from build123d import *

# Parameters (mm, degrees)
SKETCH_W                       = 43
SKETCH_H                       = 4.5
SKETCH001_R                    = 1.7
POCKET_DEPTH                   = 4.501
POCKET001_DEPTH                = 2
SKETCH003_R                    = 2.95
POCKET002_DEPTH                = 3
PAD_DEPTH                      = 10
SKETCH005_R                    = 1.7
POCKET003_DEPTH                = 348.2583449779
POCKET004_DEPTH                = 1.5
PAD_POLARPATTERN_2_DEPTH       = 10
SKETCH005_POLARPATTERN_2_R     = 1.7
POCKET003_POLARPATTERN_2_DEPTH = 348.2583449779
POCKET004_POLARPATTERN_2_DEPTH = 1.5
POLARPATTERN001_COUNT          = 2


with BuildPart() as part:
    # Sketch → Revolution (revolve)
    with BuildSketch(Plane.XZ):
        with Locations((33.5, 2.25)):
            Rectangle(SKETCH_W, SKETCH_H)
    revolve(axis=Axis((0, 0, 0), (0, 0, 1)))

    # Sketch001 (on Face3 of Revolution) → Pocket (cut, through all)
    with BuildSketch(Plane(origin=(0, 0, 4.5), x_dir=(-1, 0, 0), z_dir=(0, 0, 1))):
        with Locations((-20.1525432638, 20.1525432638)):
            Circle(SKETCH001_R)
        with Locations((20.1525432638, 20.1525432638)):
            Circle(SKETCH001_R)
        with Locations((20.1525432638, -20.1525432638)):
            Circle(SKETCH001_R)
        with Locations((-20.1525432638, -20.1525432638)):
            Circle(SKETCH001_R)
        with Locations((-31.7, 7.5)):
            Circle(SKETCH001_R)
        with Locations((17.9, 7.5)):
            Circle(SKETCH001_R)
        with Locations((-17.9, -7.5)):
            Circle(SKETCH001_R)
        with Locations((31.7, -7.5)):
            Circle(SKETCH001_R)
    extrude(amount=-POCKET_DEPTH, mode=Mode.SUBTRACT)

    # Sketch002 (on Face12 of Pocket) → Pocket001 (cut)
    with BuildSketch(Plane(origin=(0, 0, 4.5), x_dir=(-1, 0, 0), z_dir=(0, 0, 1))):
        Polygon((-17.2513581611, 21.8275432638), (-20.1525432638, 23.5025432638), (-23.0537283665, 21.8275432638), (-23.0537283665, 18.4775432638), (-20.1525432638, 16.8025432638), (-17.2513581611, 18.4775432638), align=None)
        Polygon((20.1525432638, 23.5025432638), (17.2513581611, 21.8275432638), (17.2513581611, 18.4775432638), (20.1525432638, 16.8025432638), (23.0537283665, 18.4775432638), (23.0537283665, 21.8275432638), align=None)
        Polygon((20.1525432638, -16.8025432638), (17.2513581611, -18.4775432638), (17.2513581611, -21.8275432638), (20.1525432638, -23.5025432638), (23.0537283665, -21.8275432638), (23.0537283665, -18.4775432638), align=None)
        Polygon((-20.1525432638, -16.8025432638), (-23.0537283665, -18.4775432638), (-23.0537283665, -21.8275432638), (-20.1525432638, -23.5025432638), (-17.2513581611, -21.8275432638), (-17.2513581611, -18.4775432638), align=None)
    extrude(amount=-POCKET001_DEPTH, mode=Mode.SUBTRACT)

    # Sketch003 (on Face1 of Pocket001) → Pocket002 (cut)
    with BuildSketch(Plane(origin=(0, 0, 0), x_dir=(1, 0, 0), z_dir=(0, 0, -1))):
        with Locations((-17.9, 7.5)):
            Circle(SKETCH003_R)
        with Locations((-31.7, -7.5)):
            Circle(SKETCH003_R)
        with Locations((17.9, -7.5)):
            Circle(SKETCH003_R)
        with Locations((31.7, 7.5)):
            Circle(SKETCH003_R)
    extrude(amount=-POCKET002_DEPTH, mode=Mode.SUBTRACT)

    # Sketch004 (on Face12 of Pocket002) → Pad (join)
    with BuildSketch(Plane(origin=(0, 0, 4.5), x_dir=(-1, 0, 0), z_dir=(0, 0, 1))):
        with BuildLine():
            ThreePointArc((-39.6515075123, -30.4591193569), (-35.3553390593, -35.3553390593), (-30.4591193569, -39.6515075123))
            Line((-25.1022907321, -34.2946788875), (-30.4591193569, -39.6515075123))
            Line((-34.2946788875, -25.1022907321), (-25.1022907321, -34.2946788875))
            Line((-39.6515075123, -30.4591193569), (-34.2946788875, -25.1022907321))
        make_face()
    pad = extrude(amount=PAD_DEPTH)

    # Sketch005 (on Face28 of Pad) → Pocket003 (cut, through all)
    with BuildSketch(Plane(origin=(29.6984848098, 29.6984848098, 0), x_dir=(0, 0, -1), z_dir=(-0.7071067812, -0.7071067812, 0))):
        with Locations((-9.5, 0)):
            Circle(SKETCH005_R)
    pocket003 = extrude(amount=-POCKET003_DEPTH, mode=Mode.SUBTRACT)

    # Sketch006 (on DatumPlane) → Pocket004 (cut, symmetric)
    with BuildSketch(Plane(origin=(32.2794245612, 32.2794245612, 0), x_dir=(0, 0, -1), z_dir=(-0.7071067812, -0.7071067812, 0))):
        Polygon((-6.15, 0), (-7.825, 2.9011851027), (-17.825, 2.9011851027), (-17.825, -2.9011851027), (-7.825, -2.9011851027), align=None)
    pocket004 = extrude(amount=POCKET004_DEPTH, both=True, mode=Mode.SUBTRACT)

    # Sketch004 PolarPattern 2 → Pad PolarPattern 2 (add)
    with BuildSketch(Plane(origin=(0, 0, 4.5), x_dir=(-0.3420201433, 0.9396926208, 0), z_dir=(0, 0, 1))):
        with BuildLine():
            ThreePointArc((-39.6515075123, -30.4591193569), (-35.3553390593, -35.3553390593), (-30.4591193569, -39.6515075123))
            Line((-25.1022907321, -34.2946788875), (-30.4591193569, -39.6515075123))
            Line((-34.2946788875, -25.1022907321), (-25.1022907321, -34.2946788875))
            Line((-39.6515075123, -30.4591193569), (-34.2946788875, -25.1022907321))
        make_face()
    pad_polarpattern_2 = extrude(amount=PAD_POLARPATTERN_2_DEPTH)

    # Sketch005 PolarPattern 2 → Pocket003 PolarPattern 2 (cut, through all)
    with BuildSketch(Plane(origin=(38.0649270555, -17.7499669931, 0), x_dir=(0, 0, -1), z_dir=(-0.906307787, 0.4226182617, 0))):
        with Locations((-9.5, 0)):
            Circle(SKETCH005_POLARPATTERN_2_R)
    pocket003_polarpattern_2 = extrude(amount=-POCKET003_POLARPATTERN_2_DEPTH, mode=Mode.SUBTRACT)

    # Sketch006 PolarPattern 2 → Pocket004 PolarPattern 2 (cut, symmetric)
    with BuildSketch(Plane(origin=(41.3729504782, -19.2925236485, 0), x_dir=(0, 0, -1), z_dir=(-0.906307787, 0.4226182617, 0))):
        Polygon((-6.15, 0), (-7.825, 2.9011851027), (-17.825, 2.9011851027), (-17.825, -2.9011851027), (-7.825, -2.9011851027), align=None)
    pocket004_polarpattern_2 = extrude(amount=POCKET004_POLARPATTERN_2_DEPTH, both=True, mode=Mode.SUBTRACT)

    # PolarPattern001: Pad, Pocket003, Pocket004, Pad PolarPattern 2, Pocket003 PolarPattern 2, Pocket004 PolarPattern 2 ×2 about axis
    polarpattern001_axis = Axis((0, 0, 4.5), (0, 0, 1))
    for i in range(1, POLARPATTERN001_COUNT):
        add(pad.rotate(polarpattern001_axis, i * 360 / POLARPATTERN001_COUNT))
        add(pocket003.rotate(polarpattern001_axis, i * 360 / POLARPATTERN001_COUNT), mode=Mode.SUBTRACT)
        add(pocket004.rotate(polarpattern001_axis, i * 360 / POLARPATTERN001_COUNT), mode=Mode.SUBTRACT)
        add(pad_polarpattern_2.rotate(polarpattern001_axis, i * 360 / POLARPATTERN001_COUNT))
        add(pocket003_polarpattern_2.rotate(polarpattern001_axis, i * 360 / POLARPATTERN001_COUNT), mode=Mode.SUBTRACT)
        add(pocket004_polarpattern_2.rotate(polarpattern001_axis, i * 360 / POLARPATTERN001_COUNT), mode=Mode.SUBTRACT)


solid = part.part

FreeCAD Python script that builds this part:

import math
import FreeCAD as App
import Part
import Sketcher
from FreeCAD import Vector
Q = App.Units.Quantity


def add_polygon(sketch, points):
    """Adds a closed chain of lines whose ends are joined by coincident constraints."""
    first, n = sketch.GeometryCount, len(points)
    for a, b in zip(points, points[1:] + points[:1]):
        sketch.addGeometry(Part.LineSegment(App.Vector(*a, 0), App.Vector(*b, 0)), False)
    for i in range(n):
        sketch.addConstraint(Sketcher.Constraint("Coincident", first + i, 2, first + (i + 1) % n, 1))

doc = App.newDocument("Part")
body = doc.addObject("PartDesign::Body", "Body")

sketch1 = body.newObject("Sketcher::SketchObject", "Sketch")
sketch1.AttachmentSupport = (doc.getObject("XZ_Plane"), [""])
sketch1.MapMode = "FlatFace"
add_polygon(sketch1, [(12, 4.5), (12, 0), (55, 0), (55, 4.5)])
sketch1.addConstraint([
    Sketcher.Constraint("Vertical", 0),
    Sketcher.Constraint("Horizontal", 1),
    Sketcher.Constraint("Vertical", 2),
    Sketcher.Constraint("Horizontal", 3),
    Sketcher.Constraint("PointOnObject", 0, 2, -1),
    Sketcher.Constraint("DistanceX", 1, 1, 1, 2, Q("43 mm")),
    Sketcher.Constraint("DistanceY", 0, 2, 0, 1, Q("4.5 mm")),
    Sketcher.Constraint("DistanceX", -1, 1, 0, 2, Q("12 mm")),
])
revolution = body.newObject("PartDesign::Revolution", "Revolution")
revolution.Profile = sketch1
revolution.ReferenceAxis = (sketch1, ["V_Axis"])
revolution.Angle = 360

sketch2 = body.newObject("Sketcher::SketchObject", "Sketch001")
sketch2.AttachmentSupport = (doc.getObject("XY_Plane"), [""])
sketch2.MapMode = "FlatFace"
sketch2.AttachmentOffset = App.Placement(Vector(0, 0, 4.5), App.Rotation())
sketch2.addGeometry([
    Part.Circle(Vector(20.2, -20.2, 0), Vector(0, 0, 1), 1.7),
    Part.Circle(Vector(-20.2, -20.2, 0), Vector(0, 0, 1), 1.7),
    Part.Circle(Vector(-20.2, 20.2, 0), Vector(0, 0, 1), 1.7),
    Part.Circle(Vector(20.2, 20.2, 0), Vector(0, 0, 1), 1.7),
    Part.Circle(Vector(31.7, -7.5, 0), Vector(0, 0, 1), 1.7),
    Part.Circle(Vector(-17.9, -7.5, 0), Vector(0, 0, 1), 1.7),
    Part.Circle(Vector(17.9, 7.5, 0), Vector(0, 0, 1), 1.7),
    Part.Circle(Vector(-31.7, 7.5, 0), Vector(0, 0, 1), 1.7),
], False)
sketch2.addConstraint([
    Sketcher.Constraint("Equal", 0, 1),
    Sketcher.Constraint("Equal", 1, 2),
    Sketcher.Constraint("Equal", 2, 3),
    Sketcher.Constraint("Equal", 3, 4),
    Sketcher.Constraint("Equal", 4, 5),
    Sketcher.Constraint("Equal", 5, 6),
    Sketcher.Constraint("Equal", 6, 7),
    Sketcher.Constraint("Symmetric", 0, 3, 2, 3, -1, 1),
    Sketcher.Constraint("Symmetric", 1, 3, 3, 3, -1, 1),
    Sketcher.Constraint("Symmetric", 5, 3, 6, 3, -1, 1),
    Sketcher.Constraint("Symmetric", 4, 3, 7, 3, -1, 1),
    Sketcher.Constraint("Symmetric", 0, 3, 1, 3, -2),
    Sketcher.Constraint("Horizontal", 4, 3, 5, 3),
    Sketcher.Constraint("Diameter", 0, Q("3.4 mm")),
    Sketcher.Constraint("DistanceY", 4, 3, 6, 3, Q("15 mm")),
    Sketcher.Constraint("DistanceX", -1, 1, 4, 3, Q("31.7 mm")),
    Sketcher.Constraint("DistanceX", 5, 3, -1, 1, Q("17.9 mm")),
    Sketcher.Constraint("DistanceX", -1, 1, 0, 3, Q("20.152543 mm")),
    Sketcher.Constraint("DistanceY", 0, 3, -1, 1, Q("20.152543 mm")),
])
pocket1 = body.newObject("PartDesign::Pocket", "Pocket")
pocket1.Profile = sketch2
pocket1.Type = "ThroughAll"

sketch3 = body.newObject("Sketcher::SketchObject", "Sketch002")
sketch3.AttachmentSupport = (doc.getObject("XY_Plane"), [""])
sketch3.MapMode = "FlatFace"
sketch3.AttachmentOffset = App.Placement(Vector(0, 0, 4.5), App.Rotation())
add_polygon(sketch3, [(17.3, -21.8), (20.2, -23.5), (23.1, -21.8), (23.1, -18.5), (20.2, -16.8), (17.3, -18.5)])
add_polygon(sketch3, [(-20.2, -23.5), (-17.3, -21.8), (-17.3, -18.5), (-20.2, -16.8), (-23.1, -18.5), (-23.1, -21.8)])
add_polygon(sketch3, [(-20.2, 16.8), (-17.3, 18.5), (-17.3, 21.8), (-20.2, 23.5), (-23.1, 21.8), (-23.1, 18.5)])
add_polygon(sketch3, [(20.2, 16.8), (23.1, 18.5), (23.1, 21.8), (20.2, 23.5), (17.3, 21.8), (17.3, 18.5)])
sketch3.addConstraint([
    Sketcher.Constraint("Vertical", 2),
    Sketcher.Constraint("Vertical", 5),
    Sketcher.Constraint("Vertical", 7),
    Sketcher.Constraint("Vertical", 10),
    Sketcher.Constraint("Vertical", 13),
    Sketcher.Constraint("Vertical", 16),
    Sketcher.Constraint("Vertical", 19),
    Sketcher.Constraint("Vertical", 22),
    Sketcher.Constraint("Symmetric", 4, 2, 12, 2, -1, 1),
    Sketcher.Constraint("Symmetric", 0, 2, 14, 2, -1, 1),
    Sketcher.Constraint("Symmetric", 1, 2, 15, 2, -1, 1),
    Sketcher.Constraint("Symmetric", 3, 2, 17, 2, -1, 1),
    Sketcher.Constraint("Symmetric", 9, 2, 18, 2, -1, 1),
    Sketcher.Constraint("Symmetric", 11, 2, 20, 2, -1, 1),
    Sketcher.Constraint("Symmetric", 6, 2, 21, 2, -1, 1),
    Sketcher.Constraint("Symmetric", 8, 2, 23, 2, -1, 1),
    Sketcher.Constraint("Symmetric", 5, 2, 6, 2, -2),
    Sketcher.Constraint("Symmetric", 3, 2, 8, 2, -2),
    Sketcher.Constraint("Symmetric", 2, 2, 9, 2, -2),
    Sketcher.Constraint("Symmetric", 0, 2, 11, 2, -2),
    Sketcher.Constraint("Parallel", 0, 3),
    Sketcher.Constraint("Parallel", 1, 4),
    Sketcher.Constraint("Parallel", 4, 6),
    Sketcher.Constraint("Parallel", 3, 8),
    Sketcher.Constraint("Parallel", 8, 11),
    Sketcher.Constraint("Parallel", 11, 14),
    Sketcher.Constraint("Parallel", 14, 17),
    Sketcher.Constraint("Parallel", 17, 20),
    Sketcher.Constraint("Parallel", 20, 23),
    Sketcher.Constraint("Horizontal", 2, 2, 4, 2),
    Sketcher.Constraint("Horizontal", 1, 2, 5, 2),
    Sketcher.Constraint("Angle", 0, Q("-30 deg")),
    Sketcher.Constraint("DistanceY", 2, 1, 2, 2, Q("3.35 mm")),
    Sketcher.Constraint("DistanceY", 0, 2, 3, 2, Q("6.7 mm")),
    Sketcher.Constraint("DistanceX", 6, 2, 0, 2, Q("37.403901 mm")),
    Sketcher.Constraint("DistanceY", 0, 2, -1, 1, Q("23.502543 mm")),
])
pocket2 = body.newObject("PartDesign::Pocket", "Pocket001")
pocket2.Profile = sketch3
pocket2.Length = 2

sketch4 = body.newObject("Sketcher::SketchObject", "Sketch003")
sketch4.AttachmentSupport = (doc.getObject("XY_Plane"), [""])
sketch4.MapMode = "FlatFace"
sketch4.addGeometry([
    Part.Circle(Vector(-17.9, -7.5, 0), Vector(0, 0, 1), 3),
    Part.Circle(Vector(-31.7, 7.5, 0), Vector(0, 0, 1), 3),
    Part.Circle(Vector(17.9, 7.5, 0), Vector(0, 0, 1), 3),
    Part.Circle(Vector(31.7, -7.5, 0), Vector(0, 0, 1), 3),
], False)
sketch4.addConstraint([
    Sketcher.Constraint("Equal", 0, 1),
    Sketcher.Constraint("Equal", 1, 2),
    Sketcher.Constraint("Equal", 2, 3),
    Sketcher.Constraint("Symmetric", 0, 3, 2, 3, -1, 1),
    Sketcher.Constraint("Symmetric", 1, 3, 3, 3, -1, 1),
    Sketcher.Constraint("Horizontal", 1, 3, 2, 3),
    Sketcher.Constraint("Diameter", 0, Q("5.9 mm")),
    Sketcher.Constraint("DistanceY", 0, 3, 1, 3, Q("15 mm")),
    Sketcher.Constraint("DistanceX", 0, 3, -1, 1, Q("17.9 mm")),
    Sketcher.Constraint("DistanceX", 1, 3, -1, 1, Q("31.7 mm")),
])
pocket3 = body.newObject("PartDesign::Pocket", "Pocket002")
pocket3.Profile = sketch4
pocket3.Length = 3
pocket3.Reversed = True

sketch5 = body.newObject("Sketcher::SketchObject", "Sketch004")
sketch5.AttachmentSupport = (doc.getObject("XY_Plane"), [""])
sketch5.MapMode = "FlatFace"
sketch5.AttachmentOffset = App.Placement(Vector(0, 0, 4.5), App.Rotation())
sketch5.addGeometry([
    Part.ArcOfCircle(Part.Circle(Vector(0, 0, 0), Vector(0, 0, 1), 50), math.radians(37.53), math.radians(52.47)),
    Part.LineSegment(Vector(30, 40, 0), Vector(25, 34, 0)),
    Part.LineSegment(Vector(25, 34, 0), Vector(34, 25, 0)),
    Part.LineSegment(Vector(34, 25, 0), Vector(40, 30, 0)),
], False)
sketch5.addConstraint([
    Sketcher.Constraint("Coincident", 0, 2, 1, 1),
    Sketcher.Constraint("Coincident", 1, 2, 2, 1),
    Sketcher.Constraint("Coincident", 2, 2, 3, 1),
    Sketcher.Constraint("Coincident", 3, 2, 0, 1),
    Sketcher.Constraint("Coincident", 0, 3, -1, 1),
    Sketcher.Constraint("Perpendicular", 1, 2),
    Sketcher.Constraint("Perpendicular", 2, 3),
    Sketcher.Constraint("Equal", 1, 3),
    Sketcher.Constraint("Radius", 0, Q("50 mm")),
    Sketcher.Constraint("Angle", 1, Q("-135 deg")),
    Sketcher.Constraint("Distance", 2, Q("13 mm")),
    Sketcher.Constraint("Distance", 1, Q("7.5757 mm")),
])
pad1 = body.newObject("PartDesign::Pad", "Pad")
pad1.Profile = sketch5
pad1.Length = 10

sketch6 = body.newObject("Sketcher::SketchObject", "Sketch005")
sketch6.Placement = App.Placement(Vector(29.698485, 29.698485, 0), App.Rotation(Vector(0, 0, -1), Vector(0.707106781, -0.707106781, 0), Vector(-0.707106781, -0.707106781, 0), "ZXY"))
sketch6.addGeometry(Part.Circle(Vector(-9.5, 0, 0), Vector(0, 0, 1), 1.7), False)
sketch6.addConstraint([
    Sketcher.Constraint("PointOnObject", 0, 3, -1),
    Sketcher.Constraint("Diameter", 0, Q("3.4 mm")),
    Sketcher.Constraint("DistanceX", 0, 3, -1, 1, Q("9.5 mm")),
])
pocket4 = body.newObject("PartDesign::Pocket", "Pocket003")
pocket4.Profile = sketch6
pocket4.Type = "ThroughAll"

sketch7 = body.newObject("Sketcher::SketchObject", "Sketch006")
sketch7.Placement = App.Placement(Vector(32.279425, 32.279425, 0), App.Rotation(Vector(0, 0, -1), Vector(0.707106781, -0.707106781, 0), Vector(-0.707106781, -0.707106781, 0), "ZXY"))
add_polygon(sketch7, [(-6.2, 0), (-7.8, 2.9), (-17.8, 2.9), (-17.8, -2.9), (-7.8, -2.9)])
sketch7.addConstraint([
    Sketcher.Constraint("Horizontal", 1),
    Sketcher.Constraint("Vertical", 2),
    Sketcher.Constraint("Horizontal", 3),
    Sketcher.Constraint("Symmetric", 0, 2, 3, 2, -1),
    Sketcher.Constraint("PointOnObject", 4, 2, -1),
    Sketcher.Constraint("DistanceX", 1, 2, 1, 1, Q("10 mm")),
    Sketcher.Constraint("Angle", 0, Q("120 deg")),
    Sketcher.Constraint("Distance", 0, Q("3.35 mm")),
    Sketcher.Constraint("DistanceX", 4, 2, -1, 1, Q("6.15 mm")),
])
pocket5 = body.newObject("PartDesign::Pocket", "Pocket004")
pocket5.Profile = sketch7
pocket5.Length = 3
pocket5.Midplane = True

sketch8 = body.newObject("Sketcher::SketchObject", "Sketch007")
sketch8.AttachmentSupport = (doc.getObject("XY_Plane"), [""])
sketch8.MapMode = "FlatFace"
sketch8.AttachmentOffset = App.Placement(Vector(0, 0, 4.5), App.Rotation())
sketch8.addGeometry([
    Part.ArcOfCircle(Part.Circle(Vector(0, 0, 0), Vector(0, 0, 1), 50), math.radians(-32.47), math.radians(-17.53)),
    Part.LineSegment(Vector(48, -15, 0), Vector(41, -12, 0)),
    Part.LineSegment(Vector(41, -12, 0), Vector(35, -24, 0)),
    Part.LineSegment(Vector(35, -24, 0), Vector(42, -27, 0)),
], False)
sketch8.addConstraint([
    Sketcher.Constraint("Coincident", 0, 2, 1, 1),
    Sketcher.Constraint("Coincident", 1, 2, 2, 1),
    Sketcher.Constraint("Coincident", 2, 2, 3, 1),
    Sketcher.Constraint("Coincident", 3, 2, 0, 1),
    Sketcher.Constraint("Coincident", 0, 3, -1, 1),
    Sketcher.Constraint("Perpendicular", 1, 2),
    Sketcher.Constraint("Perpendicular", 2, 3),
    Sketcher.Constraint("Equal", 1, 3),
    Sketcher.Constraint("Radius", 0, Q("50 mm")),
    Sketcher.Constraint("Angle", 1, Q("155 deg")),
    Sketcher.Constraint("Distance", 2, Q("13 mm")),
    Sketcher.Constraint("Distance", 1, Q("7.5757 mm")),
])
pad2 = body.newObject("PartDesign::Pad", "Pad001")
pad2.Profile = sketch8
pad2.Length = 10

sketch9 = body.newObject("Sketcher::SketchObject", "Sketch008")
sketch9.Placement = App.Placement(Vector(38.064927, -17.749967, 0), App.Rotation(Vector(0, 0, -1), Vector(-0.422618262, -0.906307787, 0), Vector(-0.906307787, 0.422618262, 0), "ZXY"))
sketch9.addGeometry(Part.Circle(Vector(-9.5, 0, 0), Vector(0, 0, 1), 1.7), False)
sketch9.addConstraint([
    Sketcher.Constraint("PointOnObject", 0, 3, -1),
    Sketcher.Constraint("Diameter", 0, Q("3.4 mm")),
    Sketcher.Constraint("DistanceX", 0, 3, -1, 1, Q("9.5 mm")),
])
pocket6 = body.newObject("PartDesign::Pocket", "Pocket005")
pocket6.Profile = sketch9
pocket6.Type = "ThroughAll"

sketch10 = body.newObject("Sketcher::SketchObject", "Sketch009")
sketch10.Placement = App.Placement(Vector(41.37295, -19.292524, 0), App.Rotation(Vector(0, 0, -1), Vector(-0.422618262, -0.906307787, 0), Vector(-0.906307787, 0.422618262, 0), "ZXY"))
add_polygon(sketch10, [(-6.2, 0), (-7.8, 2.9), (-17.8, 2.9), (-17.8, -2.9), (-7.8, -2.9)])
sketch10.addConstraint([
    Sketcher.Constraint("Horizontal", 1),
    Sketcher.Constraint("Vertical", 2),
    Sketcher.Constraint("Horizontal", 3),
    Sketcher.Constraint("Symmetric", 0, 2, 3, 2, -1),
    Sketcher.Constraint("PointOnObject", 4, 2, -1),
    Sketcher.Constraint("DistanceX", 1, 2, 1, 1, Q("10 mm")),
    Sketcher.Constraint("Angle", 0, Q("120 deg")),
    Sketcher.Constraint("Distance", 0, Q("3.35 mm")),
    Sketcher.Constraint("DistanceX", 4, 2, -1, 1, Q("6.15 mm")),
])
pocket7 = body.newObject("PartDesign::Pocket", "Pocket006")
pocket7.Profile = sketch10
pocket7.Length = 3
pocket7.Midplane = True
doc.recompute()

polarpattern = body.newObject("PartDesign::PolarPattern", "PolarPattern")
polarpattern.Originals = [pad1, pocket4, pocket5, pad2, pocket6, pocket7]
polarpattern.Axis = (doc.getObject("Z_Axis"), [""])
polarpattern.Angle = 360
polarpattern.Occurrences = 2
body.Tip = polarpattern

doc.recompute()
